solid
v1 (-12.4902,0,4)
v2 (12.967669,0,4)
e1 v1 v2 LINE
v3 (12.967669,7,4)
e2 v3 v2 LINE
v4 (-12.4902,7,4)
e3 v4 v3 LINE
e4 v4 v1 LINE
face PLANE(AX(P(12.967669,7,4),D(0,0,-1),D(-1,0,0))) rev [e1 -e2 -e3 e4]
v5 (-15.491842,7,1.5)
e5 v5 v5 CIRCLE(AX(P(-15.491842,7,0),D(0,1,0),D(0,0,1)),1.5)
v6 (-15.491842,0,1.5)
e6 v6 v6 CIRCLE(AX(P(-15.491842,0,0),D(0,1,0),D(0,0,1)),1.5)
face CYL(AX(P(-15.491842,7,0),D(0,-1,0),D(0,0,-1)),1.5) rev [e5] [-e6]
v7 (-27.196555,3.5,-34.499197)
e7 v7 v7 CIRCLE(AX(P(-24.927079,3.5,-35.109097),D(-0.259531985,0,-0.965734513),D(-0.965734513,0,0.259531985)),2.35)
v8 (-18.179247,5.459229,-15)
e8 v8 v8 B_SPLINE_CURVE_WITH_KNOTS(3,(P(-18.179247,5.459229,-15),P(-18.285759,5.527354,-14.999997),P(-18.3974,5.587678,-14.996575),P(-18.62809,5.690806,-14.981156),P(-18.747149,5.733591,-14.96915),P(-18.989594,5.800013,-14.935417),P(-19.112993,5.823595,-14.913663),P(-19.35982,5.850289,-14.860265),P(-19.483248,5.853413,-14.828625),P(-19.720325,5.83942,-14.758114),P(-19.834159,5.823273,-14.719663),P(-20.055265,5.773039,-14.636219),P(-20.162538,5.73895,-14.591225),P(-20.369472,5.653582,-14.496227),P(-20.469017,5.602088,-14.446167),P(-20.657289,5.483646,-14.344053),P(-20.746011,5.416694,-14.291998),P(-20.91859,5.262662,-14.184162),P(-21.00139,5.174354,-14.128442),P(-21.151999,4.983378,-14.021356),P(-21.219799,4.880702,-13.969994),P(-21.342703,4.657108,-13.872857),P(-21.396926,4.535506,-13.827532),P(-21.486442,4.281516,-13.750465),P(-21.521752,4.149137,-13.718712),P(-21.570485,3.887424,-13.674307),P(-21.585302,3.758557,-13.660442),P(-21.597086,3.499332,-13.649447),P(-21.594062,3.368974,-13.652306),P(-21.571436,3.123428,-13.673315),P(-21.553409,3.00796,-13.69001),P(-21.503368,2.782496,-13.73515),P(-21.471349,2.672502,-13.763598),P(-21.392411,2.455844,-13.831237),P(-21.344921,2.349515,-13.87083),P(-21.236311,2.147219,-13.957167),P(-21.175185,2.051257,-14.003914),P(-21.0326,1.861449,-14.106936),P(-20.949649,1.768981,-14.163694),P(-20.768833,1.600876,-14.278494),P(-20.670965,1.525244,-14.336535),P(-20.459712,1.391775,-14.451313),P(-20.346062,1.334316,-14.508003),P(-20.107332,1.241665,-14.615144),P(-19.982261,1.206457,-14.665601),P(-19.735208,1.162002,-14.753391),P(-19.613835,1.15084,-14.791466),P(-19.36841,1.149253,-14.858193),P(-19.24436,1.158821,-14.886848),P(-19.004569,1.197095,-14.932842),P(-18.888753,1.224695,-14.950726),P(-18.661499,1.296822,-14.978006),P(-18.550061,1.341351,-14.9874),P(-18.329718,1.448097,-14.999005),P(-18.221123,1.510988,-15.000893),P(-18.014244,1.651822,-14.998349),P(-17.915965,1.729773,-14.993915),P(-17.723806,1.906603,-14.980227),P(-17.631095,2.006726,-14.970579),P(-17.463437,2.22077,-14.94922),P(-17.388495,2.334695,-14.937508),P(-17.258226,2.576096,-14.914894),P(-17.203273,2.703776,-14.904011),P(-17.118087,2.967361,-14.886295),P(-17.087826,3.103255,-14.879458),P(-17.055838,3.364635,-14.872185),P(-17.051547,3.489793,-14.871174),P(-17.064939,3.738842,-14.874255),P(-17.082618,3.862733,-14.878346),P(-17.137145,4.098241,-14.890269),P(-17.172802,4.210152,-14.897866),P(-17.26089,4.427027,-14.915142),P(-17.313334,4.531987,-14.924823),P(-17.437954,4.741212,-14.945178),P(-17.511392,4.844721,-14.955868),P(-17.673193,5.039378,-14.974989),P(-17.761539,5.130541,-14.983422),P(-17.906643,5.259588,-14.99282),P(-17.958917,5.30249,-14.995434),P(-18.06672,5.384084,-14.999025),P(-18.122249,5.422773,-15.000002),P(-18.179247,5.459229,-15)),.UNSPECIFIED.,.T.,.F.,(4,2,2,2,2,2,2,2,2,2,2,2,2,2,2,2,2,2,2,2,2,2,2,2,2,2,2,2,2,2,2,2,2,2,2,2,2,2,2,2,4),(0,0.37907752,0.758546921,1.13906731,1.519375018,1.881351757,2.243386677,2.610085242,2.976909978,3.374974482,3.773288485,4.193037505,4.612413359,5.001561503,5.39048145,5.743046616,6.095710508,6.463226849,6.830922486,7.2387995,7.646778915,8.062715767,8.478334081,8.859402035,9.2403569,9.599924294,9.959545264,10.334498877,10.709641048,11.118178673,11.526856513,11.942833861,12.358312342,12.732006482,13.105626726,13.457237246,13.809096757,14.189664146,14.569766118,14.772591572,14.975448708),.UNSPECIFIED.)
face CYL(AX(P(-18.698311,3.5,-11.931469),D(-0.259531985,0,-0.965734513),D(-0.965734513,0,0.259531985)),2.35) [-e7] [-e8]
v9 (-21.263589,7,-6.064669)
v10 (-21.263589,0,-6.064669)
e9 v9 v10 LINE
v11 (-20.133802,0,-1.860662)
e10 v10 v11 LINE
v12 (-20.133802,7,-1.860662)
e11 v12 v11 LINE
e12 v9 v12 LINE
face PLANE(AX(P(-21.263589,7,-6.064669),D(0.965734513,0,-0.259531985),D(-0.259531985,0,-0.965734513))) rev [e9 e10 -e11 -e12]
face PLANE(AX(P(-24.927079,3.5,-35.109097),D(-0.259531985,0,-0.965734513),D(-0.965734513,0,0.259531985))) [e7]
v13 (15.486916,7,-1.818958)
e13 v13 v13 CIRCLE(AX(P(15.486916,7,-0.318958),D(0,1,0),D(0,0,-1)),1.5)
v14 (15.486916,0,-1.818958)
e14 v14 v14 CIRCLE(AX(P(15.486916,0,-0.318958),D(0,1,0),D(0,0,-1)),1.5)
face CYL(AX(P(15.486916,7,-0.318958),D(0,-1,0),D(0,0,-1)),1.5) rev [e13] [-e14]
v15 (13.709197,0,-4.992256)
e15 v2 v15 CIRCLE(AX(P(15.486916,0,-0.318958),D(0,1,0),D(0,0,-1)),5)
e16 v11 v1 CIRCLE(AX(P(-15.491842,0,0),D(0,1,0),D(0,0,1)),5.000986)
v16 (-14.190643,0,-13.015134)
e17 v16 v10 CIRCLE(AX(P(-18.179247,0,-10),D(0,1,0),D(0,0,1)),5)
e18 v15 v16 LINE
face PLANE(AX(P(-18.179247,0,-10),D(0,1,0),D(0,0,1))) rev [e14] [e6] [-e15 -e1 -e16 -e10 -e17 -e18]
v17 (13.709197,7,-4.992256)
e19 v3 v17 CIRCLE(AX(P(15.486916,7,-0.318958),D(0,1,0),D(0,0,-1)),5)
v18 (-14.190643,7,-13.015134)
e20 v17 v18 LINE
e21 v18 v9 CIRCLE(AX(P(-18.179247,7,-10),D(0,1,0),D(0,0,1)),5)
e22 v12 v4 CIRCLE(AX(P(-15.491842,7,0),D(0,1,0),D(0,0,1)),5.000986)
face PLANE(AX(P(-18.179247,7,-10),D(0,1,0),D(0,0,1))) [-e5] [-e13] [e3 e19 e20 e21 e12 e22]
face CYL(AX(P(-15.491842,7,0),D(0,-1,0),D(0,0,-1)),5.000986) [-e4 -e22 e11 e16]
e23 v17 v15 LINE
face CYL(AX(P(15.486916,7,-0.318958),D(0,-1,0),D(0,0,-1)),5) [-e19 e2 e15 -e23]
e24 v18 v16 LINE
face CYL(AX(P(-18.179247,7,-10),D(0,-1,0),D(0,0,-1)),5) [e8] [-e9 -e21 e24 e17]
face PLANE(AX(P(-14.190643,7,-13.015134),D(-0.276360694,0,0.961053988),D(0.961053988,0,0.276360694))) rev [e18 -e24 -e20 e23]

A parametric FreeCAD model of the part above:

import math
import FreeCAD as App
import Part
import Sketcher

V = App.Vector

doc = App.newDocument("Part")
body = doc.addObject("PartDesign::Body", "Body")

# Sketch on XZ plane
sketch1 = body.newObject("Sketcher::SketchObject", "Sketch")
sketch1.AttachmentSupport = (doc.getObject("XZ_Plane"), [""])
sketch1.MapMode = "FlatFace"
sketch1.addGeometry([
    Part.LineSegment(V(-12.5, 4, 0), V(13, 4, 0)),  # 0
    Part.ArcOfCircle(Part.Circle(V(15.5, -0.3, 0), V(0, 0, 1), 5), math.radians(-111), math.radians(120)),  # 1
    Part.LineSegment(V(13.7, -5, 0), V(-14.2, -13, 0)),  # 2
    Part.ArcOfCircle(Part.Circle(V(-18.2, -10, 0), V(0, 0, 1), 5), math.radians(128), math.radians(323)),  # 3
    Part.LineSegment(V(-21.3, -6.1, 0), V(-20.1, -1.9, 0)),  # 4
    Part.ArcOfCircle(Part.Circle(V(-15.5, 0, 0), V(0, 0, 1), 5), math.radians(53), math.radians(202)),  # 5
    Part.Circle(V(-15.5, 0, 0), V(0, 0, 1), 1.5),  # 6
    Part.Circle(V(15.5, -0.3, 0), V(0, 0, 1), 1.5),  # 7
], False)
sketch1.addConstraint([
    Sketcher.Constraint("Coincident", 0, 2, 1, 2),
    Sketcher.Constraint("Coincident", 1, 1, 2, 1),
    Sketcher.Constraint("Coincident", 2, 2, 3, 2),
    Sketcher.Constraint("Coincident", 3, 1, 4, 1),
    Sketcher.Constraint("Coincident", 4, 2, 5, 2),
    Sketcher.Constraint("Coincident", 5, 1, 0, 1),
    Sketcher.Constraint("Horizontal", 0),
    Sketcher.Constraint("Coincident", 6, 3, 5, 3),
    Sketcher.Constraint("Coincident", 7, 3, 1, 3),
    Sketcher.Constraint("Equal", 1, 3),
    Sketcher.Constraint("Equal", 6, 7),
    Sketcher.Constraint("PointOnObject", 5, 3, -1),
    Sketcher.Constraint("Diameter", 6, 3.0),
    Sketcher.Constraint("Radius", 1, 5.0),
    Sketcher.Constraint("DistanceY", 3, 3, -1, 1, 10.0),
    Sketcher.Constraint("DistanceY", -1, 1, 0, 2, 4.0),
    Sketcher.Constraint("Radius", 5, 5.000986),
    Sketcher.Constraint("DistanceX", 0, 1, 0, 2, 25.457869),
    Sketcher.Constraint("DistanceX", 5, 1, -1, 1, 12.4902),
    Sketcher.Constraint("DistanceY", 1, 1, 1, 3, 4.673298),
    Sketcher.Constraint("DistanceX", 5, 3, 2, 2, 1.3012),
    Sketcher.Constraint("Distance", 2, 29.03046),
    Sketcher.Constraint("Distance", 4, 4.35317),
    Sketcher.Constraint("DistanceX", 3, 1, -1, 1, 21.263589),
    Sketcher.Constraint("DistanceY", 3, 1, -1, 1, 6.064669),
])
pad1 = body.newObject("PartDesign::Pad", "Pad")
pad1.Profile = sketch1
pad1.Length = 7
pad1.Reversed = True

# Sketch on an angled plane
sketch2 = body.newObject("Sketcher::SketchObject", "Sketch001")
sketch2.Placement = App.Placement(V(-5.028547, 0, -18.711532), App.Rotation(V(-0.965734513, 0, 0.259531985), V(0, 1.000000001, 0), V(-0.259531985, 0, -0.965734513), "ZXY"))
sketch2.addGeometry(Part.Circle(V(15, 3.5, 0), V(0, 0, 1), 2.4), False)
sketch2.addConstraint([
    Sketcher.Constraint("Diameter", 0, 4.7),
    Sketcher.Constraint("DistanceY", -1, 1, 0, 3, 3.5),
    Sketcher.Constraint("DistanceX", -1, 1, 0, 3, 14.961007),
])
pad2 = body.newObject("PartDesign::Pad", "Pad001")
pad2.Profile = sketch2
pad2.Type = "TwoLengths"
pad2.Length = 21
pad2.Length2 = 3

doc.recompute()
